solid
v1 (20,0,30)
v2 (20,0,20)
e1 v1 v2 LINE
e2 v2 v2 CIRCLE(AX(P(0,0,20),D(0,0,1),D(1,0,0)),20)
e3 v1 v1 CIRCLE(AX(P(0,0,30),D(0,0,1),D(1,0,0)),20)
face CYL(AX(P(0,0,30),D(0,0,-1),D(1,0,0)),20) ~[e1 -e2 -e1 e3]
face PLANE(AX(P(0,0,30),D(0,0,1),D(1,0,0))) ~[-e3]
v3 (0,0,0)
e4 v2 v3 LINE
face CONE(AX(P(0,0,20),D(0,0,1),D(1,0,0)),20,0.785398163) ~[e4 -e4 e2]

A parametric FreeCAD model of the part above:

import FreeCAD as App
import Part
import Sketcher
Q = App.Units.Quantity


def add_polygon(sketch, points):
    """Adds a closed chain of lines whose ends are joined by coincident constraints."""
    first, n = sketch.GeometryCount, len(points)
    for a, b in zip(points, points[1:] + points[:1]):
        sketch.addGeometry(Part.LineSegment(App.Vector(*a, 0), App.Vector(*b, 0)), False)
    for i in range(n):
        sketch.addConstraint(Sketcher.Constraint("Coincident", first + i, 2, first + (i + 1) % n, 1))

doc = App.newDocument("Part")
body = doc.addObject("PartDesign::Body", "Body")

# Sketch on XZ plane
sketch1 = body.newObject("Sketcher::SketchObject", "Sketch")
sketch1.AttachmentSupport = (doc.getObject("XZ_Plane"), [""])
sketch1.MapMode = "FlatFace"
add_polygon(sketch1, [(0, 0), (0, 30), (20, 30), (20, 20)])  # lines 0-3
sketch1.addConstraint(Sketcher.Constraint("Vertical", 0))
sketch1.addConstraint(Sketcher.Constraint("Horizontal", 1))
sketch1.addConstraint(Sketcher.Constraint("Vertical", 2))
sketch1.addConstraint(Sketcher.Constraint("Coincident", 3, 2, -1, 1))
sketch1.addConstraint(Sketcher.Constraint("DistanceX", 1, 1, 1, 2, Q("20 mm")))
sketch1.addConstraint(Sketcher.Constraint("DistanceY", 0, 1, 0, 2, Q("30 mm")))
sketch1.addConstraint(Sketcher.Constraint("DistanceY", -1, 1, 2, 2, Q("20 mm")))
revolution = body.newObject("PartDesign::Revolution", "Revolution")
revolution.Profile = sketch1
revolution.ReferenceAxis = (sketch1, ["V_Axis"])
revolution.Angle = 360

doc.recompute()
